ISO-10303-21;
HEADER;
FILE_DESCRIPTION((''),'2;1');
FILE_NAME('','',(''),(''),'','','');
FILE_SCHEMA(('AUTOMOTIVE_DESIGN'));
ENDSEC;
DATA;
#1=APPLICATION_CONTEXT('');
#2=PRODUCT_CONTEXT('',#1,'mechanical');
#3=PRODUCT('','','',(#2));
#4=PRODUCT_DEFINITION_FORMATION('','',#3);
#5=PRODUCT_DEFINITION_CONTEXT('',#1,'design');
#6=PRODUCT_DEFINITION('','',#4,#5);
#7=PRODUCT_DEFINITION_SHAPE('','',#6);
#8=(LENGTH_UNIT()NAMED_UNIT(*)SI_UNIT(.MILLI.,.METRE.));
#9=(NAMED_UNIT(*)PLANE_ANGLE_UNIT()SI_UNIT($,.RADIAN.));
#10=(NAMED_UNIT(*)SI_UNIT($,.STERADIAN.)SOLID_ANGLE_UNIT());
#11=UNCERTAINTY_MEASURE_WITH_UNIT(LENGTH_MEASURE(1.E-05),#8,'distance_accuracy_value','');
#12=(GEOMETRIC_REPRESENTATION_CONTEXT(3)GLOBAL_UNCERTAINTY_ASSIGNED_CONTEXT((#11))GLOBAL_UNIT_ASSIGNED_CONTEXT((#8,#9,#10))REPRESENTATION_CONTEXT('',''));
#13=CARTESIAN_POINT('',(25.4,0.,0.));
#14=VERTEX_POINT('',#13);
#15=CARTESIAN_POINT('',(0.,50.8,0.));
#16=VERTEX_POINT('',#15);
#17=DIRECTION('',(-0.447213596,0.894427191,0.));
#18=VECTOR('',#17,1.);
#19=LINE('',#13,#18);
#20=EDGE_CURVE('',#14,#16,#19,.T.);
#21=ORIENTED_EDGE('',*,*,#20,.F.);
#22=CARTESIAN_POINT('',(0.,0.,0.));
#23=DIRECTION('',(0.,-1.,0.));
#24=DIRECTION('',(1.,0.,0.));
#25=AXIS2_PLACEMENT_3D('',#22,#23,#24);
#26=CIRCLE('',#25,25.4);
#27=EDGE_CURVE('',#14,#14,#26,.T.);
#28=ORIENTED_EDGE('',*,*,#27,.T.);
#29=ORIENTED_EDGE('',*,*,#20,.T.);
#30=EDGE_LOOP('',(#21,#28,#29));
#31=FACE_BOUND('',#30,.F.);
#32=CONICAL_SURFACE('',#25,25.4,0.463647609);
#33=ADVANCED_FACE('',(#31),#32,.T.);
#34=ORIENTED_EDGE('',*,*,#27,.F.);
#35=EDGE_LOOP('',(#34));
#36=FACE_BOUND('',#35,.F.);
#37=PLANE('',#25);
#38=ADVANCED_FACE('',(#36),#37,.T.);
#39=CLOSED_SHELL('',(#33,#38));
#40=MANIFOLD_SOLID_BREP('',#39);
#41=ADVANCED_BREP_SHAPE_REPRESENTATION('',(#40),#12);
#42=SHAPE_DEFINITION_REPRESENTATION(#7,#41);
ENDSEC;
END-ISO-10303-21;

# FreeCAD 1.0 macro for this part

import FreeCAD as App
import Part
import Sketcher
from FreeCAD import Vector
Q = App.Units.Quantity

doc = App.newDocument("Part")
body = doc.addObject("PartDesign::Body", "Body")

# Sketch on XY plane
sketch1 = doc.addObject("Sketcher::SketchObject", "Sketch")
body.addObject(sketch1)
sketch1.AttachmentSupport = (doc.XY_Plane, [""])
sketch1.MapMode = "FlatFace"
sketch1.addGeometry([
    Part.LineSegment(Vector(0, 51, 0), Vector(0, 0, 0)),
    Part.LineSegment(Vector(0, 0, 0), Vector(25, 0, 0)),
    Part.LineSegment(Vector(25, 0, 0), Vector(0, 51, 0)),
], False)
sketch1.addConstraint([
    Sketcher.Constraint("Coincident", 0, 2, 1, 1),
    Sketcher.Constraint("Coincident", 1, 2, 2, 1),
    Sketcher.Constraint("Coincident", 2, 2, 0, 1),
    Sketcher.Constraint("Vertical", 0),
    Sketcher.Constraint("Horizontal", 1),
    Sketcher.Constraint("Coincident", 0, 2, -1, 1),
    Sketcher.Constraint("DistanceX", 1, 1, 1, 2, Q("1 in")),
    Sketcher.Constraint("DistanceY", 0, 2, 0, 1, Q("2 in")),
])
revolution = doc.addObject("PartDesign::Revolution", "Revolution")
body.addObject(revolution)
revolution.Profile = sketch1
revolution.ReferenceAxis = (sketch1, ["V_Axis"])
revolution.Angle = 360

doc.recompute()
